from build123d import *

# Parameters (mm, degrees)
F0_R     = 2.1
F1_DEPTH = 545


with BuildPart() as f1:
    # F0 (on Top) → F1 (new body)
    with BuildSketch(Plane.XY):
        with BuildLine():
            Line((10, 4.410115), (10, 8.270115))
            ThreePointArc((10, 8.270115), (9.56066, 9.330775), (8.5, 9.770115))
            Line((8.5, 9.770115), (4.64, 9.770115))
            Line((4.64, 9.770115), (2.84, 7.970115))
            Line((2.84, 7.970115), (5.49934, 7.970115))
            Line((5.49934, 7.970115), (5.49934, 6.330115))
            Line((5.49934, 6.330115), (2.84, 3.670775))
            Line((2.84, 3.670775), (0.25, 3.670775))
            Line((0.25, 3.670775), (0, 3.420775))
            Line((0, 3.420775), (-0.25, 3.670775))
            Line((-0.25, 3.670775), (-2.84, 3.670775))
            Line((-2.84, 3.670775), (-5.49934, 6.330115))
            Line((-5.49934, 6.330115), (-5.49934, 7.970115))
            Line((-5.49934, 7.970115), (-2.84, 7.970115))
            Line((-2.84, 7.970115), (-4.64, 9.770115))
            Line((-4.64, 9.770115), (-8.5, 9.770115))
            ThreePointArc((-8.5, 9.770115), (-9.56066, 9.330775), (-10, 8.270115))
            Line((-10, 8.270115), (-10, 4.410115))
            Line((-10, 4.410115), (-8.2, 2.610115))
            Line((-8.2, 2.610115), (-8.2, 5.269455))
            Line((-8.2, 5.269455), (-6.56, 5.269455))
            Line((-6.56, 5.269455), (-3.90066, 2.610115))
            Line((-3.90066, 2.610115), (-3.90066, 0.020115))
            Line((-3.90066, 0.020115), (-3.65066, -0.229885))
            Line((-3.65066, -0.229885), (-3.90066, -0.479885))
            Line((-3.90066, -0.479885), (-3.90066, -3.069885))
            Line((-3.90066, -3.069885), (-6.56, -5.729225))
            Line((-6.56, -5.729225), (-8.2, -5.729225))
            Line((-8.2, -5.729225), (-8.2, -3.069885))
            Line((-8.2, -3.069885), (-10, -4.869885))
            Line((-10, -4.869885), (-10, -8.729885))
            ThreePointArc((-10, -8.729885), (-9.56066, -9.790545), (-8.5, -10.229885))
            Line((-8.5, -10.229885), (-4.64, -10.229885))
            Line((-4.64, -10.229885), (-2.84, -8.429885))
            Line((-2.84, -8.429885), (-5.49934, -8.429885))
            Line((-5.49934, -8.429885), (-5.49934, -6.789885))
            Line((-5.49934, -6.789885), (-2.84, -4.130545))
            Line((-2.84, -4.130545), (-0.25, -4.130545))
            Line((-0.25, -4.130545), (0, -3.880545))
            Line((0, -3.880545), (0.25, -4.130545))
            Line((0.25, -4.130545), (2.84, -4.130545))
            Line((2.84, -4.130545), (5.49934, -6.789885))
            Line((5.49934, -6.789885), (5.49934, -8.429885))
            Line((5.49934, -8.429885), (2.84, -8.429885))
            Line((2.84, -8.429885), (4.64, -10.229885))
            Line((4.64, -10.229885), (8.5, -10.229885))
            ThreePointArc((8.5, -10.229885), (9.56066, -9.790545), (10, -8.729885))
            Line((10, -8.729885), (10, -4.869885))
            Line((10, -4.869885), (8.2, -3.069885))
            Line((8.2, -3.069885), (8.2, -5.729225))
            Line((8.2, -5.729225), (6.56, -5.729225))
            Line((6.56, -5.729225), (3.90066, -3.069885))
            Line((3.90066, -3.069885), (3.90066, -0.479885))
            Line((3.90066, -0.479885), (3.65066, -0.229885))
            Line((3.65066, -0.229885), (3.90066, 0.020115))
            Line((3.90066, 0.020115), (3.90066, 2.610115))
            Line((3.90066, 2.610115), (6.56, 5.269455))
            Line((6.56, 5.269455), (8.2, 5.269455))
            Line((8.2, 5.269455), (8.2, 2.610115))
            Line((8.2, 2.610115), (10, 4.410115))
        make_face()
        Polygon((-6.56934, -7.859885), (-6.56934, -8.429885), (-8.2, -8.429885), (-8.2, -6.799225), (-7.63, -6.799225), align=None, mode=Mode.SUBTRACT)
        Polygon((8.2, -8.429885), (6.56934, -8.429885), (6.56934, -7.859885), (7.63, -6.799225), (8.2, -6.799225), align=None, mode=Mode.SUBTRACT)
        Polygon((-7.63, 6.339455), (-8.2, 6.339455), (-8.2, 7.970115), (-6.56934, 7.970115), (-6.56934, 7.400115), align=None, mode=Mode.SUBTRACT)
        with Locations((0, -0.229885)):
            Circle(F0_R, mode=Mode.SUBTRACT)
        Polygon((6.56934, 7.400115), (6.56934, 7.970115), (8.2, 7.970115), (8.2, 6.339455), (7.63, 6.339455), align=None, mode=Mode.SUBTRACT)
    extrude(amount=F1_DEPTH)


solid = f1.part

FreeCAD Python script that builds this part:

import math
import FreeCAD as App
import Part
import Sketcher
from FreeCAD import Vector


def add_polygon(sketch, points):
    """Adds a closed chain of lines whose ends are joined by coincident constraints."""
    first, n = sketch.GeometryCount, len(points)
    for a, b in zip(points, points[1:] + points[:1]):
        sketch.addGeometry(Part.LineSegment(App.Vector(*a, 0), App.Vector(*b, 0)), False)
    for i in range(n):
        sketch.addConstraint(Sketcher.Constraint("Coincident", first + i, 2, first + (i + 1) % n, 1))

doc = App.newDocument("Part")
body = doc.addObject("PartDesign::Body", "Body")

# Sketch on XY plane
sketch1 = body.newObject("Sketcher::SketchObject", "Sketch")
sketch1.AttachmentSupport = (doc.getObject("XY_Plane"), [""])
sketch1.MapMode = "FlatFace"
sketch1.addGeometry(Part.LineSegment(Vector(10, 4.41, 0), Vector(10, 8.27, 0)), False)  # 0
sketch1.addGeometry(Part.ArcOfCircle(Part.Circle(Vector(8.5, 8.27, 0), Vector(0, 0, 1), 1.5), math.radians(0), math.radians(90)), False)  # 1
sketch1.addGeometry(Part.LineSegment(Vector(8.5, 9.77, 0), Vector(4.64, 9.77, 0)), False)  # 2
sketch1.addGeometry(Part.LineSegment(Vector(4.64, 9.77, 0), Vector(2.84, 7.97, 0)), False)  # 3
sketch1.addGeometry(Part.LineSegment(Vector(2.84, 7.97, 0), Vector(5.5, 7.97, 0)), False)  # 4
sketch1.addGeometry(Part.LineSegment(Vector(5.5, 7.97, 0), Vector(5.5, 6.33, 0)), False)  # 5
sketch1.addGeometry(Part.LineSegment(Vector(5.5, 6.33, 0), Vector(2.84, 3.67, 0)), False)  # 6
sketch1.addGeometry(Part.LineSegment(Vector(2.84, 3.67, 0), Vector(0.25, 3.67, 0)), False)  # 7
sketch1.addGeometry(Part.LineSegment(Vector(0.25, 3.67, 0), Vector(0, 3.42, 0)), False)  # 8
sketch1.addGeometry(Part.LineSegment(Vector(0, 3.42, 0), Vector(-0.25, 3.67, 0)), False)  # 9
sketch1.addGeometry(Part.LineSegment(Vector(-0.25, 3.67, 0), Vector(-2.84, 3.67, 0)), False)  # 10
sketch1.addGeometry(Part.LineSegment(Vector(-2.84, 3.67, 0), Vector(-5.5, 6.33, 0)), False)  # 11
sketch1.addGeometry(Part.LineSegment(Vector(-5.5, 6.33, 0), Vector(-5.5, 7.97, 0)), False)  # 12
sketch1.addGeometry(Part.LineSegment(Vector(-5.5, 7.97, 0), Vector(-2.84, 7.97, 0)), False)  # 13
sketch1.addGeometry(Part.LineSegment(Vector(-2.84, 7.97, 0), Vector(-4.64, 9.77, 0)), False)  # 14
sketch1.addGeometry(Part.LineSegment(Vector(-4.64, 9.77, 0), Vector(-8.5, 9.77, 0)), False)  # 15
sketch1.addGeometry(Part.ArcOfCircle(Part.Circle(Vector(-8.5, 8.27, 0), Vector(0, 0, 1), 1.5), math.radians(90), math.radians(180)), False)  # 16
sketch1.addGeometry(Part.LineSegment(Vector(-10, 8.27, 0), Vector(-10, 4.41, 0)), False)  # 17
sketch1.addGeometry(Part.LineSegment(Vector(-10, 4.41, 0), Vector(-8.2, 2.61, 0)), False)  # 18
sketch1.addGeometry(Part.LineSegment(Vector(-8.2, 2.61, 0), Vector(-8.2, 5.27, 0)), False)  # 19
sketch1.addGeometry(Part.LineSegment(Vector(-8.2, 5.27, 0), Vector(-6.56, 5.27, 0)), False)  # 20
sketch1.addGeometry(Part.LineSegment(Vector(-6.56, 5.27, 0), Vector(-3.9, 2.61, 0)), False)  # 21
sketch1.addGeometry(Part.LineSegment(Vector(-3.9, 2.61, 0), Vector(-3.9, 0.02, 0)), False)  # 22
sketch1.addGeometry(Part.LineSegment(Vector(-3.9, 0.02, 0), Vector(-3.65, -0.23, 0)), False)  # 23
sketch1.addGeometry(Part.LineSegment(Vector(-3.65, -0.23, 0), Vector(-3.9, -0.48, 0)), False)  # 24
sketch1.addGeometry(Part.LineSegment(Vector(-3.9, -0.48, 0), Vector(-3.9, -3.07, 0)), False)  # 25
sketch1.addGeometry(Part.LineSegment(Vector(-3.9, -3.07, 0), Vector(-6.56, -5.73, 0)), False)  # 26
sketch1.addGeometry(Part.LineSegment(Vector(-6.56, -5.73, 0), Vector(-8.2, -5.73, 0)), False)  # 27
sketch1.addGeometry(Part.LineSegment(Vector(-8.2, -5.73, 0), Vector(-8.2, -3.07, 0)), False)  # 28
sketch1.addGeometry(Part.LineSegment(Vector(-8.2, -3.07, 0), Vector(-10, -4.87, 0)), False)  # 29
sketch1.addGeometry(Part.LineSegment(Vector(-10, -4.87, 0), Vector(-10, -8.73, 0)), False)  # 30
sketch1.addGeometry(Part.ArcOfCircle(Part.Circle(Vector(-8.5, -8.73, 0), Vector(0, 0, 1), 1.5), math.radians(-180), math.radians(-90)), False)  # 31
sketch1.addGeometry(Part.LineSegment(Vector(-8.5, -10.23, 0), Vector(-4.64, -10.23, 0)), False)  # 32
sketch1.addGeometry(Part.LineSegment(Vector(-4.64, -10.23, 0), Vector(-2.84, -8.43, 0)), False)  # 33
sketch1.addGeometry(Part.LineSegment(Vector(-2.84, -8.43, 0), Vector(-5.5, -8.43, 0)), False)  # 34
sketch1.addGeometry(Part.LineSegment(Vector(-5.5, -8.43, 0), Vector(-5.5, -6.79, 0)), False)  # 35
sketch1.addGeometry(Part.LineSegment(Vector(-5.5, -6.79, 0), Vector(-2.84, -4.13, 0)), False)  # 36
sketch1.addGeometry(Part.LineSegment(Vector(-2.84, -4.13, 0), Vector(-0.25, -4.13, 0)), False)  # 37
sketch1.addGeometry(Part.LineSegment(Vector(-0.25, -4.13, 0), Vector(0, -3.88, 0)), False)  # 38
sketch1.addGeometry(Part.LineSegment(Vector(0, -3.88, 0), Vector(0.25, -4.13, 0)), False)  # 39
sketch1.addGeometry(Part.LineSegment(Vector(0.25, -4.13, 0), Vector(2.84, -4.13, 0)), False)  # 40
sketch1.addGeometry(Part.LineSegment(Vector(2.84, -4.13, 0), Vector(5.5, -6.79, 0)), False)  # 41
sketch1.addGeometry(Part.LineSegment(Vector(5.5, -6.79, 0), Vector(5.5, -8.43, 0)), False)  # 42
sketch1.addGeometry(Part.LineSegment(Vector(5.5, -8.43, 0), Vector(2.84, -8.43, 0)), False)  # 43
sketch1.addGeometry(Part.LineSegment(Vector(2.84, -8.43, 0), Vector(4.64, -10.23, 0)), False)  # 44
sketch1.addGeometry(Part.LineSegment(Vector(4.64, -10.23, 0), Vector(8.5, -10.23, 0)), False)  # 45
sketch1.addGeometry(Part.ArcOfCircle(Part.Circle(Vector(8.5, -8.73, 0), Vector(0, 0, 1), 1.5), math.radians(-90), math.radians(0)), False)  # 46
sketch1.addGeometry(Part.LineSegment(Vector(10, -8.73, 0), Vector(10, -4.87, 0)), False)  # 47
sketch1.addGeometry(Part.LineSegment(Vector(10, -4.87, 0), Vector(8.2, -3.07, 0)), False)  # 48
sketch1.addGeometry(Part.LineSegment(Vector(8.2, -3.07, 0), Vector(8.2, -5.73, 0)), False)  # 49
sketch1.addGeometry(Part.LineSegment(Vector(8.2, -5.73, 0), Vector(6.56, -5.73, 0)), False)  # 50
sketch1.addGeometry(Part.LineSegment(Vector(6.56, -5.73, 0), Vector(3.9, -3.07, 0)), False)  # 51
sketch1.addGeometry(Part.LineSegment(Vector(3.9, -3.07, 0), Vector(3.9, -0.48, 0)), False)  # 52
sketch1.addGeometry(Part.LineSegment(Vector(3.9, -0.48, 0), Vector(3.65, -0.23, 0)), False)  # 53
sketch1.addGeometry(Part.LineSegment(Vector(3.65, -0.23, 0), Vector(3.9, 0.02, 0)), False)  # 54
sketch1.addGeometry(Part.LineSegment(Vector(3.9, 0.02, 0), Vector(3.9, 2.61, 0)), False)  # 55
sketch1.addGeometry(Part.LineSegment(Vector(3.9, 2.61, 0), Vector(6.56, 5.27, 0)), False)  # 56
sketch1.addGeometry(Part.LineSegment(Vector(6.56, 5.27, 0), Vector(8.2, 5.27, 0)), False)  # 57
sketch1.addGeometry(Part.LineSegment(Vector(8.2, 5.27, 0), Vector(8.2, 2.61, 0)), False)  # 58
sketch1.addGeometry(Part.LineSegment(Vector(8.2, 2.61, 0), Vector(10, 4.41, 0)), False)  # 59
add_polygon(sketch1, [(-7.63, -6.8), (-6.57, -7.86), (-6.57, -8.43), (-8.2, -8.43), (-8.2, -6.8)])  # lines 60-64
add_polygon(sketch1, [(8.2, -6.8), (8.2, -8.43), (6.57, -8.43), (6.57, -7.86), (7.63, -6.8)])  # lines 65-69
add_polygon(sketch1, [(-6.57, 7.4), (-7.63, 6.34), (-8.2, 6.34), (-8.2, 7.97), (-6.57, 7.97)])  # lines 70-74
sketch1.addGeometry(Part.Circle(Vector(0, -0.23, 0), Vector(0, 0, 1), 2.1), False)  # 75
add_polygon(sketch1, [(7.63, 6.34), (6.57, 7.4), (6.57, 7.97), (8.2, 7.97), (8.2, 6.34)])  # lines 76-80
sketch1.addConstraint([
    Sketcher.Constraint("Tangent", 0, 2, 1, 1),
    Sketcher.Constraint("Tangent", 1, 2, 2, 1),
    Sketcher.Constraint("Coincident", 2, 2, 3, 1),
    Sketcher.Constraint("Coincident", 3, 2, 4, 1),
    Sketcher.Constraint("Coincident", 4, 2, 5, 1),
    Sketcher.Constraint("Coincident", 5, 2, 6, 1),
    Sketcher.Constraint("Coincident", 6, 2, 7, 1),
    Sketcher.Constraint("Coincident", 7, 2, 8, 1),
    Sketcher.Constraint("Coincident", 8, 2, 9, 1),
    Sketcher.Constraint("Coincident", 9, 2, 10, 1),
    Sketcher.Constraint("Coincident", 10, 2, 11, 1),
    Sketcher.Constraint("Coincident", 11, 2, 12, 1),
    Sketcher.Constraint("Coincident", 12, 2, 13, 1),
    Sketcher.Constraint("Coincident", 13, 2, 14, 1),
    Sketcher.Constraint("Coincident", 14, 2, 15, 1),
    Sketcher.Constraint("Tangent", 15, 2, 16, 1),
    Sketcher.Constraint("Tangent", 16, 2, 17, 1),
    Sketcher.Constraint("Coincident", 17, 2, 18, 1),
    Sketcher.Constraint("Coincident", 18, 2, 19, 1),
    Sketcher.Constraint("Coincident", 19, 2, 20, 1),
    Sketcher.Constraint("Coincident", 20, 2, 21, 1),
    Sketcher.Constraint("Coincident", 21, 2, 22, 1),
    Sketcher.Constraint("Coincident", 22, 2, 23, 1),
    Sketcher.Constraint("Coincident", 23, 2, 24, 1),
    Sketcher.Constraint("Coincident", 24, 2, 25, 1),
    Sketcher.Constraint("Coincident", 25, 2, 26, 1),
    Sketcher.Constraint("Coincident", 26, 2, 27, 1),
    Sketcher.Constraint("Coincident", 27, 2, 28, 1),
    Sketcher.Constraint("Coincident", 28, 2, 29, 1),
    Sketcher.Constraint("Coincident", 29, 2, 30, 1),
    Sketcher.Constraint("Tangent", 30, 2, 31, 1),
    Sketcher.Constraint("Tangent", 31, 2, 32, 1),
    Sketcher.Constraint("Coincident", 32, 2, 33, 1),
    Sketcher.Constraint("Coincident", 33, 2, 34, 1),
    Sketcher.Constraint("Coincident", 34, 2, 35, 1),
    Sketcher.Constraint("Coincident", 35, 2, 36, 1),
    Sketcher.Constraint("Coincident", 36, 2, 37, 1),
    Sketcher.Constraint("Coincident", 37, 2, 38, 1),
    Sketcher.Constraint("Coincident", 38, 2, 39, 1),
    Sketcher.Constraint("Coincident", 39, 2, 40, 1),
    Sketcher.Constraint("Coincident", 40, 2, 41, 1),
    Sketcher.Constraint("Coincident", 41, 2, 42, 1),
    Sketcher.Constraint("Coincident", 42, 2, 43, 1),
    Sketcher.Constraint("Coincident", 43, 2, 44, 1),
    Sketcher.Constraint("Coincident", 44, 2, 45, 1),
    Sketcher.Constraint("Tangent", 45, 2, 46, 1),
    Sketcher.Constraint("Tangent", 46, 2, 47, 1),
    Sketcher.Constraint("Coincident", 47, 2, 48, 1),
    Sketcher.Constraint("Coincident", 48, 2, 49, 1),
    Sketcher.Constraint("Coincident", 49, 2, 50, 1),
    Sketcher.Constraint("Coincident", 50, 2, 51, 1),
    Sketcher.Constraint("Coincident", 51, 2, 52, 1),
    Sketcher.Constraint("Coincident", 52, 2, 53, 1),
    Sketcher.Constraint("Coincident", 53, 2, 54, 1),
    Sketcher.Constraint("Coincident", 54, 2, 55, 1),
    Sketcher.Constraint("Coincident", 55, 2, 56, 1),
    Sketcher.Constraint("Coincident", 56, 2, 57, 1),
    Sketcher.Constraint("Coincident", 57, 2, 58, 1),
    Sketcher.Constraint("Coincident", 58, 2, 59, 1),
    Sketcher.Constraint("Coincident", 59, 2, 0, 1),
    Sketcher.Constraint("Vertical", 0),
    Sketcher.Constraint("Horizontal", 2),
    Sketcher.Constraint("Horizontal", 4),
    Sketcher.Constraint("Vertical", 5),
    Sketcher.Constraint("Horizontal", 7),
    Sketcher.Constraint("Horizontal", 10),
    Sketcher.Constraint("Vertical", 12),
    Sketcher.Constraint("Horizontal", 13),
    Sketcher.Constraint("Horizontal", 15),
    Sketcher.Constraint("Vertical", 17),
    Sketcher.Constraint("Vertical", 19),
    Sketcher.Constraint("Horizontal", 20),
    Sketcher.Constraint("Vertical", 22),
    Sketcher.Constraint("Vertical", 25),
    Sketcher.Constraint("Horizontal", 27),
    Sketcher.Constraint("Vertical", 28),
    Sketcher.Constraint("Vertical", 30),
    Sketcher.Constraint("Horizontal", 32),
    Sketcher.Constraint("Horizontal", 34),
    Sketcher.Constraint("Vertical", 35),
    Sketcher.Constraint("Horizontal", 37),
    Sketcher.Constraint("Horizontal", 40),
    Sketcher.Constraint("Vertical", 42),
    Sketcher.Constraint("Horizontal", 43),
    Sketcher.Constraint("Horizontal", 45),
    Sketcher.Constraint("Vertical", 47),
    Sketcher.Constraint("Vertical", 49),
    Sketcher.Constraint("Horizontal", 50),
    Sketcher.Constraint("Vertical", 52),
    Sketcher.Constraint("Vertical", 55),
    Sketcher.Constraint("Horizontal", 57),
    Sketcher.Constraint("Vertical", 58),
    Sketcher.Constraint("Vertical", 61),
    Sketcher.Constraint("Horizontal", 62),
    Sketcher.Constraint("Vertical", 63),
    Sketcher.Constraint("Horizontal", 64),
    Sketcher.Constraint("Vertical", 65),
    Sketcher.Constraint("Horizontal", 66),
    Sketcher.Constraint("Vertical", 67),
    Sketcher.Constraint("Horizontal", 69),
    Sketcher.Constraint("Horizontal", 71),
    Sketcher.Constraint("Vertical", 72),
    Sketcher.Constraint("Horizontal", 73),
    Sketcher.Constraint("Vertical", 74),
    Sketcher.Constraint("Vertical", 77),
    Sketcher.Constraint("Horizontal", 78),
    Sketcher.Constraint("Vertical", 79),
    Sketcher.Constraint("Horizontal", 80),
    Sketcher.Constraint("Equal", 1, 16),
    Sketcher.Constraint("Equal", 16, 31),
    Sketcher.Constraint("Equal", 31, 46),
    Sketcher.Constraint("Symmetric", 1, 3, 16, 3, -2),
    Sketcher.Constraint("Symmetric", 31, 3, 46, 3, -2),
    Sketcher.Constraint("Symmetric", 7, 2, 9, 2, -2),
    Sketcher.Constraint("Symmetric", 5, 2, 11, 2, -2),
    Sketcher.Constraint("Symmetric", 3, 2, 13, 2, -2),
    Sketcher.Constraint("Symmetric", 37, 2, 39, 2, -2),
    Sketcher.Constraint("Symmetric", 35, 2, 41, 2, -2),
    Sketcher.Constraint("Symmetric", 33, 2, 43, 2, -2),
    Sketcher.Constraint("Symmetric", 28, 2, 48, 2, -2),
    Sketcher.Constraint("Symmetric", 26, 2, 50, 2, -2),
    Sketcher.Constraint("Symmetric", 25, 2, 51, 2, -2),
    Sketcher.Constraint("Symmetric", 23, 2, 53, 2, -2),
    Sketcher.Constraint("Symmetric", 22, 2, 54, 2, -2),
    Sketcher.Constraint("Symmetric", 20, 2, 56, 2, -2),
    Sketcher.Constraint("Symmetric", 18, 2, 58, 2, -2),
    Sketcher.Constraint("Symmetric", 62, 2, 65, 2, -2),
    Sketcher.Constraint("Symmetric", 60, 2, 67, 2, -2),
    Sketcher.Constraint("Symmetric", 64, 2, 68, 2, -2),
    Sketcher.Constraint("Symmetric", 74, 2, 76, 2, -2),
    Sketcher.Constraint("Symmetric", 72, 2, 78, 2, -2),
    Sketcher.Constraint("Symmetric", 70, 2, 80, 2, -2),
    Sketcher.Constraint("PointOnObject", 75, 3, -2),
    Sketcher.Constraint("PointOnObject", 8, 2, -2),
    Sketcher.Constraint("PointOnObject", 38, 2, -2),
    Sketcher.Constraint("Parallel", 3, 6),
    Sketcher.Constraint("Parallel", 6, 8),
    Sketcher.Constraint("Perpendicular", 8, 9),
    Sketcher.Constraint("Parallel", 9, 11),
    Sketcher.Constraint("Parallel", 11, 14),
    Sketcher.Constraint("Parallel", 14, 18),
    Sketcher.Constraint("Parallel", 18, 21),
    Sketcher.Constraint("Parallel", 21, 23),
    Sketcher.Constraint("Perpendicular", 23, 24),
    Sketcher.Constraint("Parallel", 24, 26),
    Sketcher.Constraint("Parallel", 26, 29),
    Sketcher.Constraint("Parallel", 29, 33),
    Sketcher.Constraint("Parallel", 33, 36),
    Sketcher.Constraint("Parallel", 36, 38),
    Sketcher.Constraint("Parallel", 39, 41),
    Sketcher.Constraint("Parallel", 41, 44),
    Sketcher.Constraint("Parallel", 44, 48),
    Sketcher.Constraint("Parallel", 51, 53),
    Sketcher.Constraint("Parallel", 54, 56),
    Sketcher.Constraint("Parallel", 56, 59),
    Sketcher.Constraint("Perpendicular", 59, 60),
    Sketcher.Constraint("Parallel", 68, 70),
    Sketcher.Constraint("Horizontal", 18, 2, 21, 2),
    Sketcher.Constraint("Horizontal", 75, 3, 23, 2),
    Sketcher.Constraint("Horizontal", 25, 2, 28, 2),
    Sketcher.Constraint("Horizontal", 43, 2, 61, 2),
    Sketcher.Constraint("Horizontal", 13, 2, 72, 2),
    Sketcher.Constraint("Vertical", 16, 3, 31, 3),
    Sketcher.Constraint("Vertical", 3, 2, 6, 2),
    Sketcher.Constraint("Vertical", 22, 2, 24, 2),
    Sketcher.Constraint("Vertical", 20, 2, 26, 2),
    Sketcher.Constraint("Vertical", 19, 2, 27, 2),
    Sketcher.Constraint("Vertical", 14, 2, 32, 2),
    Sketcher.Constraint("Vertical", 13, 2, 33, 2),
    Sketcher.Constraint("Vertical", 12, 2, 34, 2),
    Sketcher.Constraint("Vertical", 33, 2, 36, 2),
    Sketcher.Constraint("Vertical", 9, 2, 37, 2),
    Sketcher.Constraint("Vertical", 28, 2, 62, 2),
    Sketcher.Constraint("Vertical", 64, 2, 70, 2),
    Sketcher.Constraint("Vertical", 63, 2, 71, 2),
    Sketcher.Constraint("Vertical", 61, 2, 73, 2),
    Sketcher.Constraint("Equal", 45, 0),
    Sketcher.Constraint("Equal", 57, 5),
    Sketcher.Constraint("Equal", 43, 19),
    Sketcher.Constraint("Equal", 40, 22),
    Sketcher.Constraint("Equal", 22, 25),
    Sketcher.Constraint("Equal", 17, 30),
    Sketcher.Constraint("Equal", 12, 35),
    Sketcher.Constraint("Equal", 80, 61),
    Sketcher.Constraint("Equal", 65, 72),
    Sketcher.Constraint("Equal", 14, 18),
    Sketcher.Constraint("Equal", 9, 23),
    Sketcher.Constraint("Diameter", 75, 4.2),
    Sketcher.Constraint("Radius", 1, 1.500001),
    Sketcher.Constraint("DistanceX", -1, 1, 0, 2, 10.0),
    Sketcher.Constraint("Distance", 60, 1.5),
    Sketcher.Constraint("DistanceX", 2, 2, 2, 1, 3.86),
    Sketcher.Constraint("DistanceX", 7, 2, 7, 1, 2.59),
    Sketcher.Constraint("DistanceX", 20, 1, 20, 2, 1.64),
    Sketcher.Constraint("DistanceX", 64, 1, 64, 2, 0.57),
    Sketcher.Constraint("DistanceX", 18, 2, -1, 1, 8.2),
    Sketcher.Constraint("DistanceX", 4, 1, 4, 2, 2.65934),
    Sketcher.Constraint("DistanceY", -1, 1, 1, 3, 8.270114),
])
pad1 = body.newObject("PartDesign::Pad", "Pad")
pad1.Profile = sketch1
pad1.Length = 545

doc.recompute()
